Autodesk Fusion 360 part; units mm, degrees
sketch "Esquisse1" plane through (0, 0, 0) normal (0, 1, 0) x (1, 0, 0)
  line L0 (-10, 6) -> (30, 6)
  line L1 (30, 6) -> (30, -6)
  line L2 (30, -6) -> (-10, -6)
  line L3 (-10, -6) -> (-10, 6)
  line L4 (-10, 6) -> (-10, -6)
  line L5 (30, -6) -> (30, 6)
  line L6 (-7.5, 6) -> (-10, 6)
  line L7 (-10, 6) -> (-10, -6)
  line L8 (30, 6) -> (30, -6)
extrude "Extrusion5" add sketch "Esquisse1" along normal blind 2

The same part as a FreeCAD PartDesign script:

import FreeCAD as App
import Part
import Sketcher

doc = App.newDocument("Part")
body = doc.addObject("PartDesign::Body", "Body")

sketch1 = body.newObject("Sketcher::SketchObject", "Sketch")
sketch1.AttachmentSupport = (doc.getObject("XZ_Plane"), [""])
sketch1.MapMode = "FlatFace"
sketch1.addGeometry(Part.LineSegment(App.Vector(30, -6, 0), App.Vector(-10, -6, 0)), False)
sketch1.addGeometry(Part.LineSegment(App.Vector(-10, -6, 0), App.Vector(-10, 6, 0)), False)
sketch1.addGeometry(Part.LineSegment(App.Vector(-10, 6, 0), App.Vector(30, 6, 0)), False)
sketch1.addGeometry(Part.LineSegment(App.Vector(30, 6, 0), App.Vector(30, -6, 0)), False)
sketch1.addConstraint(Sketcher.Constraint("Coincident", 0, 2, 1, 1))
sketch1.addConstraint(Sketcher.Constraint("Coincident", 1, 2, 2, 1))
sketch1.addConstraint(Sketcher.Constraint("Coincident", 2, 2, 3, 1))
sketch1.addConstraint(Sketcher.Constraint("Coincident", 3, 2, 0, 1))
sketch1.addConstraint(Sketcher.Constraint("Horizontal", 0))
sketch1.addConstraint(Sketcher.Constraint("Vertical", 1))
sketch1.addConstraint(Sketcher.Constraint("Horizontal", 2))
sketch1.addConstraint(Sketcher.Constraint("Vertical", 3))
sketch1.addConstraint(Sketcher.Constraint("DistanceX", 0, 2, 0, 1, 40.0))
sketch1.addConstraint(Sketcher.Constraint("DistanceY", 1, 1, 1, 2, 12.0))
sketch1.addConstraint(Sketcher.Constraint("DistanceX", 0, 2, -1, 1, 10.0))
sketch1.addConstraint(Sketcher.Constraint("DistanceY", 0, 2, -1, 1, 6.0))
pad1 = body.newObject("PartDesign::Pad", "Pad")
pad1.Profile = sketch1
pad1.Length = 2
pad1.Reversed = True

doc.recompute()
